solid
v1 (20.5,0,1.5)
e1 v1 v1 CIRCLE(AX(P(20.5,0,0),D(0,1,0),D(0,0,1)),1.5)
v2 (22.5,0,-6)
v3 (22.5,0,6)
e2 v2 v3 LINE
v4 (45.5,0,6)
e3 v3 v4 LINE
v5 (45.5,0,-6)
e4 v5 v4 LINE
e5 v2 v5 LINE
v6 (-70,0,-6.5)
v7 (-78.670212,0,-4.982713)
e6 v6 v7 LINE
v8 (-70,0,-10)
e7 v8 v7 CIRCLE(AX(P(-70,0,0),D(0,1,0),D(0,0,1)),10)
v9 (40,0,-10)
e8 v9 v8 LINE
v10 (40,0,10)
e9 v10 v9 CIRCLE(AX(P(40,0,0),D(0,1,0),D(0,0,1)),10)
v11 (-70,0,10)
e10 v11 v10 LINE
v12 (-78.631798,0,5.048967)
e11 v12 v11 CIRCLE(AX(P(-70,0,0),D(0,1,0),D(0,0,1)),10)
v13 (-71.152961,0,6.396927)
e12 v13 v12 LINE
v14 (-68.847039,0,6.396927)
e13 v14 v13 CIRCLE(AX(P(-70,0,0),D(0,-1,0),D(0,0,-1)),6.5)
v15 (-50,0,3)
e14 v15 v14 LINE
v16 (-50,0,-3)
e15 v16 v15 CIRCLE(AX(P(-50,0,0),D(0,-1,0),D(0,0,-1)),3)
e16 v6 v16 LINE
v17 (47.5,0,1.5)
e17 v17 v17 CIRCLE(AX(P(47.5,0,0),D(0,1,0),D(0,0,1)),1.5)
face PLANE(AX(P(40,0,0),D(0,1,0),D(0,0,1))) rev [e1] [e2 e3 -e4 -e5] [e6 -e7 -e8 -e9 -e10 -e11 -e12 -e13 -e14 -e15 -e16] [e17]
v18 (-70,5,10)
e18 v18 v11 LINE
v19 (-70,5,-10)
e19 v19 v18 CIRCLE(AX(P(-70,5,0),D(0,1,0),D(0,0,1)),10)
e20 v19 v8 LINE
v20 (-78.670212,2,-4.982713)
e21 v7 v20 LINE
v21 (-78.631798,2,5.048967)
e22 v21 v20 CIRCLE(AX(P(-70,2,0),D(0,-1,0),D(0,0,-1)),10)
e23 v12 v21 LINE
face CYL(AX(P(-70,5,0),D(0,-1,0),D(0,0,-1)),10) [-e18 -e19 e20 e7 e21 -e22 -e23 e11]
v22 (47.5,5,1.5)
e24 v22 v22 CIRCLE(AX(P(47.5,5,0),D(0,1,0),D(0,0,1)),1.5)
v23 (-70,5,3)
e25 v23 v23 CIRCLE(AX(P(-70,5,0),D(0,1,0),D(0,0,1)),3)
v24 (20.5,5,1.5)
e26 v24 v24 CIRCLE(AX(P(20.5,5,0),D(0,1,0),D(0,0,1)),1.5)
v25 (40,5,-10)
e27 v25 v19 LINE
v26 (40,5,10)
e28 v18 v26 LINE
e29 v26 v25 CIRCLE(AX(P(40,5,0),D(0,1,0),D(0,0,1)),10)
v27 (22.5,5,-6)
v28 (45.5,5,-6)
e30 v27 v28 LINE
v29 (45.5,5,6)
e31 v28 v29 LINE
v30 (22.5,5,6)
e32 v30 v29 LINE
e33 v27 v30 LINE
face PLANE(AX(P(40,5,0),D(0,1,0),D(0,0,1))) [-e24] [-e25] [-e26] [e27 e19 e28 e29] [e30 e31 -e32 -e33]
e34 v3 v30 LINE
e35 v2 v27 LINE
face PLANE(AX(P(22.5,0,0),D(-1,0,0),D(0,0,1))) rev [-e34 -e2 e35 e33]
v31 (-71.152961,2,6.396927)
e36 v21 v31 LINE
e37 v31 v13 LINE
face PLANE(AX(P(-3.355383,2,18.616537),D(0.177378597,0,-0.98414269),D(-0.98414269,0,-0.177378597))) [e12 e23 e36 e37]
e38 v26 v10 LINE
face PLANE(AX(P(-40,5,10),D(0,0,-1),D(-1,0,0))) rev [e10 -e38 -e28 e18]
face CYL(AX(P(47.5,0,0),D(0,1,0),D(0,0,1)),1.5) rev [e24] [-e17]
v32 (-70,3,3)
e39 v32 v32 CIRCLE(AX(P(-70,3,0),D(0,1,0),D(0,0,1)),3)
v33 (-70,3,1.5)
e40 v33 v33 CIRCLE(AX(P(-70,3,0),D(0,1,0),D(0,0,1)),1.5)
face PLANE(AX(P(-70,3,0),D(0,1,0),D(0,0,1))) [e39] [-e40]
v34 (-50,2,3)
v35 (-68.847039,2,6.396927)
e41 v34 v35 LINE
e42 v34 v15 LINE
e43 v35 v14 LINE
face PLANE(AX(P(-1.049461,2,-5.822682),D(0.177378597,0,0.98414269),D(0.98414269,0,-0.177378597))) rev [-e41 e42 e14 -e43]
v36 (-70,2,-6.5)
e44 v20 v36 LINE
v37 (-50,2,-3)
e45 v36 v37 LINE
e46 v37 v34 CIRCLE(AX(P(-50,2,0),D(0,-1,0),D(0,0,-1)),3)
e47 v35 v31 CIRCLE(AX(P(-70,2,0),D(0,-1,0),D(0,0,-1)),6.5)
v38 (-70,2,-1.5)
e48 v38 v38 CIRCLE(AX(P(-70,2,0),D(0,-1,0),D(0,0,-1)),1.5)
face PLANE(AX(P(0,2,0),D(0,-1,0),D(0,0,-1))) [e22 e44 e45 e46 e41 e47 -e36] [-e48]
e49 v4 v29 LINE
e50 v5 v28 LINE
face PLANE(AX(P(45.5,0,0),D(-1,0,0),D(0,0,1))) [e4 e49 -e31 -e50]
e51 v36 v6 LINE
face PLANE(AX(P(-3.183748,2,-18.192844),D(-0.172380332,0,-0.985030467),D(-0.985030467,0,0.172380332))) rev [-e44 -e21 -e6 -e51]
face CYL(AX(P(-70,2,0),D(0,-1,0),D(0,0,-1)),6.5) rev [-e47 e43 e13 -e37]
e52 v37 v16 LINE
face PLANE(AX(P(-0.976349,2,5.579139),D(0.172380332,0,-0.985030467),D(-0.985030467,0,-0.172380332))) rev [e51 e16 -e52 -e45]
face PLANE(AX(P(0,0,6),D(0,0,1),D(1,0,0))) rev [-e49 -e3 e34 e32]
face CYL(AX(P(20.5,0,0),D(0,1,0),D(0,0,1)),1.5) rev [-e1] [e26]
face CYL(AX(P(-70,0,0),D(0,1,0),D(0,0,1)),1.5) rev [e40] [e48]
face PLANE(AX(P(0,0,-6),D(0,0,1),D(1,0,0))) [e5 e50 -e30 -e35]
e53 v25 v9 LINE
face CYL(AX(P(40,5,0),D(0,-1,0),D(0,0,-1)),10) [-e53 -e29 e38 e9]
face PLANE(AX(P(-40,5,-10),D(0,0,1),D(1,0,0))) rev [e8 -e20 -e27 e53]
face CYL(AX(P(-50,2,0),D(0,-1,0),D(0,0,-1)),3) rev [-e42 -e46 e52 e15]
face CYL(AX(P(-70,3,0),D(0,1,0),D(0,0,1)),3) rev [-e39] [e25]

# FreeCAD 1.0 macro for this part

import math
import FreeCAD as App
import Part
import Sketcher
Q = App.Units.Quantity


def add_polygon(sketch, points):
    """Adds a closed chain of lines whose ends are joined by coincident constraints."""
    first, n = sketch.GeometryCount, len(points)
    for a, b in zip(points, points[1:] + points[:1]):
        sketch.addGeometry(Part.LineSegment(App.Vector(*a, 0), App.Vector(*b, 0)), False)
    for i in range(n):
        sketch.addConstraint(Sketcher.Constraint("Coincident", first + i, 2, first + (i + 1) % n, 1))

doc = App.newDocument("Part")
body = doc.addObject("PartDesign::Body", "Body")

# Sketch on XZ plane
sketch1 = body.newObject("Sketcher::SketchObject", "Sketch")
sketch1.AttachmentSupport = (doc.getObject("XZ_Plane"), [""])
sketch1.MapMode = "FlatFace"
sketch1.addGeometry([
    Part.ArcOfCircle(Part.Circle(App.Vector(40, 0, 0), App.Vector(0, 0, 1), 10), math.radians(-90), math.radians(90)),
    Part.LineSegment(App.Vector(40, -10, 0), App.Vector(-70, -10, 0)),
    Part.ArcOfCircle(Part.Circle(App.Vector(-70, 0, 0), App.Vector(0, 0, 1), 10), math.radians(90), math.radians(270)),
    Part.LineSegment(App.Vector(-70, 10, 0), App.Vector(40, 10, 0)),
], False)
sketch1.addConstraint([
    Sketcher.Constraint("Tangent", 0, 1, 1, 1),
    Sketcher.Constraint("Tangent", 1, 2, 2, 2),
    Sketcher.Constraint("Tangent", 2, 1, 3, 1),
    Sketcher.Constraint("Tangent", 3, 2, 0, 2),
    Sketcher.Constraint("Horizontal", 1),
    Sketcher.Constraint("Horizontal", 3),
    Sketcher.Constraint("PointOnObject", 0, 3, -1),
    Sketcher.Constraint("Radius", 0, Q("10 mm")),
    Sketcher.Constraint("DistanceX", 1, 2, 1, 1, Q("110 mm")),
    Sketcher.Constraint("DistanceX", -1, 1, 0, 3, Q("40 mm")),
])
pad1 = body.newObject("PartDesign::Pad", "Pad")
pad1.Profile = sketch1
pad1.Length = 5
pad1.Reversed = True

# Sketch on XZ plane
sketch2 = body.newObject("Sketcher::SketchObject", "Sketch001")
sketch2.AttachmentSupport = (doc.getObject("XZ_Plane"), [""])
sketch2.MapMode = "FlatFace"
sketch2.AttachmentOffset = App.Placement(App.Vector(0, 0, -5), App.Rotation())
add_polygon(sketch2, [(22.5, -6), (22.5, 6), (45.5, 6), (45.5, -6)])  # lines 0-3
sketch2.addGeometry(Part.Circle(App.Vector(20.5, 0, 0), App.Vector(0, 0, 1), 1.5), False)  # 4
sketch2.addGeometry(Part.Circle(App.Vector(47.5, 0, 0), App.Vector(0, 0, 1), 1.5), False)  # 5
sketch2.addConstraint([
    Sketcher.Constraint("Vertical", 0),
    Sketcher.Constraint("Horizontal", 1),
    Sketcher.Constraint("Vertical", 2),
    Sketcher.Constraint("Horizontal", 3),
    Sketcher.Constraint("Equal", 4, 5),
    Sketcher.Constraint("PointOnObject", 4, 3, -1),
    Sketcher.Constraint("PointOnObject", 5, 3, -1),
    Sketcher.Constraint("Diameter", 4, Q("3 mm")),
    Sketcher.Constraint("DistanceX", 1, 1, 1, 2, Q("23 mm")),
    Sketcher.Constraint("DistanceY", 0, 1, 0, 2, Q("12 mm")),
    Sketcher.Constraint("DistanceY", -1, 1, 0, 2, Q("6 mm")),
    Sketcher.Constraint("DistanceX", 4, 3, 5, 3, Q("27 mm")),
    Sketcher.Constraint("DistanceX", 4, 3, 0, 2, Q("2 mm")),
    Sketcher.Constraint("DistanceX", -1, 1, 4, 3, Q("20.5 mm")),
])
pocket1 = body.newObject("PartDesign::Pocket", "Pocket")
pocket1.Profile = sketch2
pocket1.Type = "ThroughAll"
pocket1.Reversed = True

# Sketch on XZ plane
sketch3 = body.newObject("Sketcher::SketchObject", "Sketch002")
sketch3.AttachmentSupport = (doc.getObject("XZ_Plane"), [""])
sketch3.MapMode = "FlatFace"
sketch3.AttachmentOffset = App.Placement(App.Vector(0, 0, -5), App.Rotation())
sketch3.addGeometry(Part.Circle(App.Vector(-70, 0, 0), App.Vector(0, 0, 1), 3), False)
sketch3.addConstraint([
    Sketcher.Constraint("PointOnObject", 0, 3, -1),
    Sketcher.Constraint("Diameter", 0, Q("6 mm")),
    Sketcher.Constraint("DistanceX", 0, 3, -1, 1, Q("70 mm")),
])
pocket2 = body.newObject("PartDesign::Pocket", "Pocket001")
pocket2.Profile = sketch3
pocket2.Length = 2
pocket2.Reversed = True

# Sketch on XZ plane
sketch4 = body.newObject("Sketcher::SketchObject", "Sketch003")
sketch4.AttachmentSupport = (doc.getObject("XZ_Plane"), [""])
sketch4.MapMode = "FlatFace"
sketch4.addGeometry([
    Part.LineSegment(App.Vector(-71.2, 6.4, 0), App.Vector(-78.6, 5, 0)),  # 0
    Part.ArcOfCircle(Part.Circle(App.Vector(-70, 0, 0), App.Vector(0, 0, 1), 10), math.radians(150), math.radians(210)),  # 1
    Part.LineSegment(App.Vector(-78.7, -5, 0), App.Vector(-70, -6.5, 0)),  # 2
    Part.LineSegment(App.Vector(-70, -6.5, 0), App.Vector(-50, -3, 0)),  # 3
    Part.ArcOfCircle(Part.Circle(App.Vector(-50, 0, 0), App.Vector(0, 0, 1), 3), math.radians(-90), math.radians(90)),  # 4
    Part.LineSegment(App.Vector(-50, 3, 0), App.Vector(-68.8, 6.4, 0)),  # 5
    Part.ArcOfCircle(Part.Circle(App.Vector(-70, 0, 0), App.Vector(0, 0, 1), 6.5), math.radians(80), math.radians(100)),  # 6
], False)
sketch4.addConstraint([
    Sketcher.Constraint("Coincident", 0, 2, 1, 1),
    Sketcher.Constraint("Coincident", 1, 2, 2, 1),
    Sketcher.Constraint("Coincident", 2, 2, 3, 1),
    Sketcher.Constraint("Coincident", 3, 2, 4, 1),
    Sketcher.Constraint("Coincident", 4, 2, 5, 1),
    Sketcher.Constraint("Tangent", 5, 2, 6, 1),
    Sketcher.Constraint("Tangent", 6, 2, 0, 1),
    Sketcher.Constraint("Coincident", 6, 3, 1, 3),
    Sketcher.Constraint("Symmetric", 3, 2, 4, 2, -1),
    Sketcher.Constraint("PointOnObject", 1, 3, -1),
    Sketcher.Constraint("Horizontal", 5, 2, 6, 2),
    Sketcher.Constraint("Vertical", 6, 3, 2, 2),
    Sketcher.Constraint("Vertical", 4, 3, 3, 2),
    Sketcher.Constraint("Radius", 1, Q("10 mm")),
    Sketcher.Constraint("Radius", 4, Q("3 mm")),
    Sketcher.Constraint("Radius", 6, Q("6.5 mm")),
    Sketcher.Constraint("DistanceX", 1, 3, -1, 1, Q("70 mm")),
    Sketcher.Constraint("DistanceX", 4, 3, -1, 1, Q("50 mm")),
    Sketcher.Constraint("DistanceY", 2, 2, -1, 1, Q("6.5 mm")),
    Sketcher.Constraint("DistanceX", 1, 2, -1, 1, Q("78.670212 mm")),
])
pocket3 = body.newObject("PartDesign::Pocket", "Pocket002")
pocket3.Profile = sketch4
pocket3.Length = 2

# Sketch on XZ plane
sketch5 = body.newObject("Sketcher::SketchObject", "Sketch004")
sketch5.AttachmentSupport = (doc.getObject("XZ_Plane"), [""])
sketch5.MapMode = "FlatFace"
sketch5.AttachmentOffset = App.Placement(App.Vector(0, 0, -3), App.Rotation())
sketch5.addGeometry(Part.Circle(App.Vector(-70, 0, 0), App.Vector(0, 0, 1), 1.5), False)
sketch5.addConstraint([
    Sketcher.Constraint("PointOnObject", 0, 3, -1),
    Sketcher.Constraint("Diameter", 0, Q("3 mm")),
    Sketcher.Constraint("DistanceX", 0, 3, -1, 1, Q("70 mm")),
])
pocket4 = body.newObject("PartDesign::Pocket", "Pocket003")
pocket4.Profile = sketch5
pocket4.Type = "ThroughAll"
pocket4.Reversed = True

doc.recompute()
